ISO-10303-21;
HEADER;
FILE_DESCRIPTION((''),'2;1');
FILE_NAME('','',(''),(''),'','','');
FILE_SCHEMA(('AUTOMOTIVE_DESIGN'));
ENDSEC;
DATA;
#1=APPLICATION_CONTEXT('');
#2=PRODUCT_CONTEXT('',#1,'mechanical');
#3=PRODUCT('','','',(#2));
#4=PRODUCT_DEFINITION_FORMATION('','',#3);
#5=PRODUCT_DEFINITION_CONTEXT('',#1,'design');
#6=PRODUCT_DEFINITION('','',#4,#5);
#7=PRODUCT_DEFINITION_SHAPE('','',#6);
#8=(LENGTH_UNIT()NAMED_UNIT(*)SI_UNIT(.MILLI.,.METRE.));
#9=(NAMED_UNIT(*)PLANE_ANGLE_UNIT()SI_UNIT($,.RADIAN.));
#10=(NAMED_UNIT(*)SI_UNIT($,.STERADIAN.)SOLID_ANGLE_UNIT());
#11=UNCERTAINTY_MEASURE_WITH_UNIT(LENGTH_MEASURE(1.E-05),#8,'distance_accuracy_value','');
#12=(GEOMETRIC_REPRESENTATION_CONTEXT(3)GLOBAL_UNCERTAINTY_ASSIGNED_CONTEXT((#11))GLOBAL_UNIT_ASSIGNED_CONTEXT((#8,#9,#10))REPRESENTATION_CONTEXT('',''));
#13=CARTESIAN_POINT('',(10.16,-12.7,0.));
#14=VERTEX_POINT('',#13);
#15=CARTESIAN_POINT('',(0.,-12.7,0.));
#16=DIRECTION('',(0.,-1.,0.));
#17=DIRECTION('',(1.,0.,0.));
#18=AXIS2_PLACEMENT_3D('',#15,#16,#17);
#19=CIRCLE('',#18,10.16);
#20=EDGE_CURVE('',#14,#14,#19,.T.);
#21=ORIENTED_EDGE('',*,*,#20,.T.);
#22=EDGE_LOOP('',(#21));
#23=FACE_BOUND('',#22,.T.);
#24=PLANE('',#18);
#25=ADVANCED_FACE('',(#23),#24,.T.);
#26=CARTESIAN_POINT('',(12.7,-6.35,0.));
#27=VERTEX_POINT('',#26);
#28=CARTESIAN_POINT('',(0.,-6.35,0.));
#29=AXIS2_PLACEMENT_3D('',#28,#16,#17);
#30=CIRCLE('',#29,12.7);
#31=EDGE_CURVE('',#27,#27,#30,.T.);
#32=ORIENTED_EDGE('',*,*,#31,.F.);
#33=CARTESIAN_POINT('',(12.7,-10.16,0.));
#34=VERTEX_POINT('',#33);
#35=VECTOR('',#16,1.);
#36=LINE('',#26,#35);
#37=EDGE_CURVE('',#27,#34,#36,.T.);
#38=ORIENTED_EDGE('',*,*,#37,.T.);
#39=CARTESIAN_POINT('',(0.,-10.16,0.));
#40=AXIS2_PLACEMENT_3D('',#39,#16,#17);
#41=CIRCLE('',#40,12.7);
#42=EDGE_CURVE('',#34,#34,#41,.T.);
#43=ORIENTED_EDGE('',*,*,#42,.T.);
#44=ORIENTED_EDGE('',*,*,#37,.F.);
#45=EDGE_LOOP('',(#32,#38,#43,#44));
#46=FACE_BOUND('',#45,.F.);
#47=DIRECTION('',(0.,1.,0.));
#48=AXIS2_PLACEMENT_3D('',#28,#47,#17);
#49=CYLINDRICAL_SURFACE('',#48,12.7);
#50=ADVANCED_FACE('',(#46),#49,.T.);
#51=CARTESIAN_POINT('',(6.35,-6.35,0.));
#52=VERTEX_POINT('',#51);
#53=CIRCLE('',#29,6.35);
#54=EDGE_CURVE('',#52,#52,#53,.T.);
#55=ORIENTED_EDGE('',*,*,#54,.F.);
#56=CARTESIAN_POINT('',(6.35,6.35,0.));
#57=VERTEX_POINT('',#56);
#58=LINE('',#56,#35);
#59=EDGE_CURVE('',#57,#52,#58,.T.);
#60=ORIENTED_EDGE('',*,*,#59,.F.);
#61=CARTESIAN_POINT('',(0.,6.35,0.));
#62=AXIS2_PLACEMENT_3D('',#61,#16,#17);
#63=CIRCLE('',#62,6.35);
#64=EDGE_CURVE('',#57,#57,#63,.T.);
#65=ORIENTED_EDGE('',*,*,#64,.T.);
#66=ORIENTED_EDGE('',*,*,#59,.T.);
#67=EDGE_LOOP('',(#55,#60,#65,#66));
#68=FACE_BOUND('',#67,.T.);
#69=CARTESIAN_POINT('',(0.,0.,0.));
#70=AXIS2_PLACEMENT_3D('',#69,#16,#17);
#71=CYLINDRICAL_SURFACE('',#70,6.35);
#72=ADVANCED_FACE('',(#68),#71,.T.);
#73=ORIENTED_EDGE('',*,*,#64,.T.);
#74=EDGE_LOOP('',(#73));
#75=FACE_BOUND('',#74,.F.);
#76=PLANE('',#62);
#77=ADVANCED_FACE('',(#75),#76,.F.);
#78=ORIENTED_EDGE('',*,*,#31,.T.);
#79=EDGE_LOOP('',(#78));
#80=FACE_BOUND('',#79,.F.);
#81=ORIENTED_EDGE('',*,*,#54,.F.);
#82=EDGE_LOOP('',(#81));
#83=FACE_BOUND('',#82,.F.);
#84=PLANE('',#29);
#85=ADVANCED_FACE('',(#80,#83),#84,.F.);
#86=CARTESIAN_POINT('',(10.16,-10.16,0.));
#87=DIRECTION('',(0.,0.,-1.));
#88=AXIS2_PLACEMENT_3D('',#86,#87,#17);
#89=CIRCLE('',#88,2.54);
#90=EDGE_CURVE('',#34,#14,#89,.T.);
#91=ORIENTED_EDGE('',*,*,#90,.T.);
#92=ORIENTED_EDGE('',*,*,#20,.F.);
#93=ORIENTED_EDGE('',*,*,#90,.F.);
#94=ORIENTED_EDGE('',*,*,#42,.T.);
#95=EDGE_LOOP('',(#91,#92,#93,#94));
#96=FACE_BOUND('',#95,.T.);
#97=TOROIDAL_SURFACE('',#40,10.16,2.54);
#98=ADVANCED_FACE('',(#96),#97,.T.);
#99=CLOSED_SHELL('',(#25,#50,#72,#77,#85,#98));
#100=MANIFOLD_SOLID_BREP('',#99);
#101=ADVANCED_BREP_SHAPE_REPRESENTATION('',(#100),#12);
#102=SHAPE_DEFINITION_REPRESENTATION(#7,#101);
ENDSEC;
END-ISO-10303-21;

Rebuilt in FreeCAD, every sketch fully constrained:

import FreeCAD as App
import Part
import Sketcher
from FreeCAD import Vector
Q = App.Units.Quantity


def edges_at(feature, points):
    """Names of the edges that pass closest to the given points."""
    edges = feature.Shape.Edges
    near = lambda p: min(range(len(edges)), key=lambda i: edges[i].distToShape(Part.Vertex(*p))[0])
    return sorted({f"Edge{near(p) + 1}" for p in points})

doc = App.newDocument("Part")
params = doc.addObject("Spreadsheet::Sheet", "Params")
for row, (alias, value) in enumerate([
    ("sketch1_diameter", "0.5 in"),
    ("pad1_length", "0.5 in"),
    ("sketch2_diameter", "1 in"),
    ("pad2_length", "0.25 in"),
    ("fillet_radius", "0.1 in"),
], start=1):
    params.set(f"A{row}", alias)
    params.set(f"B{row}", "=" + value)
    params.setAlias(f"B{row}", alias)

body = doc.addObject("PartDesign::Body", "Body")

# Sketch on XZ plane
sketch1 = doc.addObject("Sketcher::SketchObject", "Sketch")
body.addObject(sketch1)
sketch1.AttachmentSupport = (doc.XZ_Plane, [""])
sketch1.MapMode = "FlatFace"
sketch1.addGeometry(Part.Circle(Vector(0, 0, 0), Vector(0, 0, 1), 6), False)
sketch1.addConstraint(Sketcher.Constraint("Coincident", 0, 3, -1, 1))
sketch1.addConstraint(Sketcher.Constraint("Diameter", 0, Q("0.5 in")))
sketch1.setExpression("Constraints[1]", "Params.sketch1_diameter")
pad1 = doc.addObject("PartDesign::Pad", "Pad")
body.addObject(pad1)
pad1.Profile = sketch1
pad1.setExpression("Length", "Params.pad1_length")
pad1.Midplane = True

# Sketch on XZ plane
sketch2 = doc.addObject("Sketcher::SketchObject", "Sketch001")
body.addObject(sketch2)
sketch2.AttachmentSupport = (doc.XZ_Plane, [""])
sketch2.MapMode = "FlatFace"
sketch2.AttachmentOffset = App.Placement(Vector(0, 0, 0.25 * 25.4), App.Rotation())
sketch2.addGeometry(Part.Circle(Vector(0, 0, 0), Vector(0, 0, 1), 13), False)
sketch2.addConstraint(Sketcher.Constraint("Coincident", 0, 3, -1, 1))
sketch2.addConstraint(Sketcher.Constraint("Diameter", 0, Q("1 in")))
sketch2.setExpression("Constraints[1]", "Params.sketch2_diameter")
pad2 = doc.addObject("PartDesign::Pad", "Pad001")
body.addObject(pad2)
pad2.Profile = sketch2
pad2.setExpression("Length", "Params.pad2_length")
doc.recompute()

fillet = doc.addObject("PartDesign::Fillet", "Fillet")
body.addObject(fillet)
fillet.Base = (pad2, edges_at(pad2, [(-12.7, -12.7, 0)]))
fillet.setExpression("Radius", "Params.fillet_radius")

doc.recompute()
